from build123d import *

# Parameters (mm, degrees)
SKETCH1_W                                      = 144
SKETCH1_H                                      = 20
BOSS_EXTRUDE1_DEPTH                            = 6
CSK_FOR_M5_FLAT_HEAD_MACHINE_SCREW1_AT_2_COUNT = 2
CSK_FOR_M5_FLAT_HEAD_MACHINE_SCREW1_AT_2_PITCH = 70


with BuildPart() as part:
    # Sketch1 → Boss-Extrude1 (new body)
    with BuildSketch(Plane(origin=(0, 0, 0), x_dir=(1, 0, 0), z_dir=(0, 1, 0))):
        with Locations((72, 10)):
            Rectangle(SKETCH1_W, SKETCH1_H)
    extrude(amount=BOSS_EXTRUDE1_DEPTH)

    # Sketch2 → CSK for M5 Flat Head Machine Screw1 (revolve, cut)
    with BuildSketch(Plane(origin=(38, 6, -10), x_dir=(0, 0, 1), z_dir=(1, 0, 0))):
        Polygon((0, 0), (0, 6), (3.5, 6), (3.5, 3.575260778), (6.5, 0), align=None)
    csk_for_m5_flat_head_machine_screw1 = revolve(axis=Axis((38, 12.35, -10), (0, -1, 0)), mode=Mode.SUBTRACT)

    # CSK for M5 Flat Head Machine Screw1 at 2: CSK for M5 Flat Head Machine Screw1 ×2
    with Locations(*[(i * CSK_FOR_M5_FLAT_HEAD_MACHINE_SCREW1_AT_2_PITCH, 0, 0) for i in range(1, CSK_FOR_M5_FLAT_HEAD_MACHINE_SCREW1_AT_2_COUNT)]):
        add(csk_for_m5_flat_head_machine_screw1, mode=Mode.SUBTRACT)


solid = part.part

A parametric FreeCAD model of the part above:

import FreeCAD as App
import Part
import Sketcher
from FreeCAD import Vector
Q = App.Units.Quantity

doc = App.newDocument("Part")
params = doc.addObject("Spreadsheet::Sheet", "Params")
for row, (alias, value) in enumerate([
    ("sketch1_width", "144 mm"),
    ("sketch1_height", "20 mm"),
    ("pad1_length", "6 mm"),
    ("sketch2_width", "6 mm"),
    ("sketch2_height", "6.5 mm"),
    ("sketch2_height2", "3.5 mm"),
    ("groove_angle", "360 deg"),
    ("linearpattern_pitch", "70 mm"),
], start=1):
    params.set(f"A{row}", alias)
    params.set(f"B{row}", "=" + value)
    params.setAlias(f"B{row}", alias)

body = doc.addObject("PartDesign::Body", "Body")

sketch1 = body.newObject("Sketcher::SketchObject", "Sketch")
sketch1.AttachmentSupport = (doc.getObject("XZ_Plane"), [""])
sketch1.MapMode = "FlatFace"
sketch1.addGeometry([
    Part.LineSegment(Vector(0, -20, 0), Vector(0, 0, 0)),
    Part.LineSegment(Vector(0, 0, 0), Vector(144, 0, 0)),
    Part.LineSegment(Vector(144, 0, 0), Vector(144, -20, 0)),
    Part.LineSegment(Vector(144, -20, 0), Vector(0, -20, 0)),
], False)
sketch1.addConstraint([
    Sketcher.Constraint("Coincident", 0, 2, 1, 1),
    Sketcher.Constraint("Coincident", 1, 2, 2, 1),
    Sketcher.Constraint("Coincident", 2, 2, 3, 1),
    Sketcher.Constraint("Coincident", 3, 2, 0, 1),
    Sketcher.Constraint("Vertical", 0),
    Sketcher.Constraint("Horizontal", 1),
    Sketcher.Constraint("Vertical", 2),
    Sketcher.Constraint("Horizontal", 3),
    Sketcher.Constraint("Coincident", 0, 2, -1, 1),
    Sketcher.Constraint("DistanceX", 1, 1, 1, 2, Q("144 mm")),
    Sketcher.Constraint("DistanceY", 0, 1, 0, 2, Q("20 mm")),
])
sketch1.setExpression("Constraints[9]", "Params.sketch1_width")
sketch1.setExpression("Constraints[10]", "Params.sketch1_height")
pad1 = body.newObject("PartDesign::Pad", "Pad")
pad1.Profile = sketch1
pad1.setExpression("Length", "Params.pad1_length")
pad1.Reversed = True

sketch2 = body.newObject("Sketcher::SketchObject", "Sketch001")
sketch2.AttachmentSupport = (doc.getObject("YZ_Plane"), [""])
sketch2.MapMode = "FlatFace"
sketch2.AttachmentOffset = App.Placement(Vector(0, 0, 38), App.Rotation())
sketch2.addGeometry([
    Part.LineSegment(Vector(0, -10, 0), Vector(6, -10, 0)),
    Part.LineSegment(Vector(6, -10, 0), Vector(6, -3.5, 0)),
    Part.LineSegment(Vector(6, -3.5, 0), Vector(2.4, -6.5, 0)),
    Part.LineSegment(Vector(2.4, -6.5, 0), Vector(0, -6.5, 0)),
    Part.LineSegment(Vector(0, -6.5, 0), Vector(0, -10, 0)),
], False)
sketch2.addGeometry(Part.LineSegment(Vector(6, -10, 0), Vector(0, -10, 0)), True)
sketch2.addConstraint([
    Sketcher.Constraint("Coincident", 0, 2, 1, 1),
    Sketcher.Constraint("Coincident", 1, 2, 2, 1),
    Sketcher.Constraint("Coincident", 2, 2, 3, 1),
    Sketcher.Constraint("Coincident", 3, 2, 4, 1),
    Sketcher.Constraint("Coincident", 4, 2, 0, 1),
    Sketcher.Constraint("Horizontal", 0),
    Sketcher.Constraint("Vertical", 1),
    Sketcher.Constraint("Horizontal", 3),
    Sketcher.Constraint("Vertical", 4),
    Sketcher.Constraint("Horizontal", 5),
    Sketcher.Constraint("Coincident", 5, 1, 0, 2),
    Sketcher.Constraint("PointOnObject", 3, 2, -2),
    Sketcher.Constraint("PointOnObject", 5, 2, -2),
    Sketcher.Constraint("DistanceX", 0, 1, 0, 2, Q("6 mm")),
    Sketcher.Constraint("Angle", 2, Q("-140 deg")),
    Sketcher.Constraint("DistanceY", 1, 1, 1, 2, Q("6.5 mm")),
    Sketcher.Constraint("DistanceY", 4, 2, 4, 1, Q("3.5 mm")),
    Sketcher.Constraint("DistanceY", 0, 2, -1, 1, Q("10 mm")),
])
sketch2.setExpression("Constraints[13]", "Params.sketch2_width")
sketch2.setExpression("Constraints[15]", "Params.sketch2_height")
sketch2.setExpression("Constraints[16]", "Params.sketch2_height2")
groove = body.newObject("PartDesign::Groove", "Groove")
groove.Profile = sketch2
groove.ReferenceAxis = (sketch2, ["Axis0"])
groove.setExpression("Angle", "Params.groove_angle")
doc.recompute()

linearpattern = body.newObject("PartDesign::LinearPattern", "LinearPattern")
linearpattern.Originals = [groove]
linearpattern.Direction = (doc.getObject("X_Axis"), [""])
linearpattern.Mode = "offset"
linearpattern.setExpression("Offset", "Params.linearpattern_pitch")
linearpattern.Occurrences = 2
body.Tip = linearpattern

doc.recompute()
